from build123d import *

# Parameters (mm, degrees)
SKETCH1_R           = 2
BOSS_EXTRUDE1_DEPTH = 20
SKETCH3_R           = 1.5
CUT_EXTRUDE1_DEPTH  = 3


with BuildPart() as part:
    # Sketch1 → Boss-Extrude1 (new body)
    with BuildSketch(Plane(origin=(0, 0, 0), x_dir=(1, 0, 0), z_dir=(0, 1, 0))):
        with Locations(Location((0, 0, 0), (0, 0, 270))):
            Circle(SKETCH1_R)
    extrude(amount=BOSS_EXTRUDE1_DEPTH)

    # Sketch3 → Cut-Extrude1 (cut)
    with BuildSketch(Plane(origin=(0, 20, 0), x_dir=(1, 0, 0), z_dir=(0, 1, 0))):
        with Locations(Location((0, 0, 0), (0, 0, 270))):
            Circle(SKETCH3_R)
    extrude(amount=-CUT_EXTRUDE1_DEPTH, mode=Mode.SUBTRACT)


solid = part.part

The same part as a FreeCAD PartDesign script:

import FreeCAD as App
import Part
import Sketcher
from FreeCAD import Vector
Q = App.Units.Quantity

doc = App.newDocument("Part")
body = doc.addObject("PartDesign::Body", "Body")

# Sketch on XZ plane
sketch1 = body.newObject("Sketcher::SketchObject", "Sketch")
sketch1.AttachmentSupport = (doc.getObject("XZ_Plane"), [""])
sketch1.MapMode = "FlatFace"
sketch1.addGeometry(Part.Circle(Vector(0, 0, 0), Vector(0, 0, 1), 2), False)
sketch1.addConstraint(Sketcher.Constraint("Coincident", 0, 3, -1, 1))
sketch1.addConstraint(Sketcher.Constraint("Diameter", 0, Q("4 mm")))
pad1 = body.newObject("PartDesign::Pad", "Pad")
pad1.Profile = sketch1
pad1.Length = 20
pad1.Reversed = True

# Sketch on XZ plane
sketch2 = body.newObject("Sketcher::SketchObject", "Sketch001")
sketch2.AttachmentSupport = (doc.getObject("XZ_Plane"), [""])
sketch2.MapMode = "FlatFace"
sketch2.AttachmentOffset = App.Placement(Vector(0, 0, -20), App.Rotation())
sketch2.addGeometry(Part.Circle(Vector(0, 0, 0), Vector(0, 0, 1), 1.5), False)
sketch2.addConstraint(Sketcher.Constraint("Coincident", 0, 3, -1, 1))
sketch2.addConstraint(Sketcher.Constraint("Diameter", 0, Q("3 mm")))
pocket1 = body.newObject("PartDesign::Pocket", "Pocket")
pocket1.Profile = sketch2
pocket1.Length = 3
pocket1.Reversed = True

doc.recompute()
